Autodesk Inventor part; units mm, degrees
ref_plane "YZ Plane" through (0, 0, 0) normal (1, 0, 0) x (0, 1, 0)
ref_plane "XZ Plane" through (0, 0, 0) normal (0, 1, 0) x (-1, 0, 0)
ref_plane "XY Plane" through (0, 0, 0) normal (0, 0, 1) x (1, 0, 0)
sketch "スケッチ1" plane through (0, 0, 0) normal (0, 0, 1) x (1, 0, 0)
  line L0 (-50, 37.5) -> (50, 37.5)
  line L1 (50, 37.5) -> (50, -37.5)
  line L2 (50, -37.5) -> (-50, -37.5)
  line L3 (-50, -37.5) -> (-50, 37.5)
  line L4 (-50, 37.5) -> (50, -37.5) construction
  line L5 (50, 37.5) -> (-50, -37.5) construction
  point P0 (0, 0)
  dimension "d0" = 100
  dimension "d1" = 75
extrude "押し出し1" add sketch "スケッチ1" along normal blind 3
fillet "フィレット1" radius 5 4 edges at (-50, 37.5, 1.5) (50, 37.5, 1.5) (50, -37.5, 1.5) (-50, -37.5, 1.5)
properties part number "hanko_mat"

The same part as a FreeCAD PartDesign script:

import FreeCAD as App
import Part
import Sketcher
from FreeCAD import Vector
Q = App.Units.Quantity


def edges_at(feature, points):
    """Names of the edges that pass closest to the given points."""
    edges = feature.Shape.Edges
    near = lambda p: min(range(len(edges)), key=lambda i: edges[i].distToShape(Part.Vertex(*p))[0])
    return sorted({f"Edge{near(p) + 1}" for p in points})


def add_polygon(sketch, points):
    """Adds a closed chain of lines whose ends are joined by coincident constraints."""
    first, n = sketch.GeometryCount, len(points)
    for a, b in zip(points, points[1:] + points[:1]):
        sketch.addGeometry(Part.LineSegment(App.Vector(*a, 0), App.Vector(*b, 0)), False)
    for i in range(n):
        sketch.addConstraint(Sketcher.Constraint("Coincident", first + i, 2, first + (i + 1) % n, 1))

doc = App.newDocument("Part")
params = doc.addObject("Spreadsheet::Sheet", "Params")
for row, (alias, value) in enumerate([
    ("sketch1_width", "100 mm"),
    ("sketch1_height", "75 mm"),
    ("pad1_length", "3 mm"),
    ("fillet_radius", "5 mm"),
], start=1):
    params.set(f"A{row}", alias)
    params.set(f"B{row}", "=" + value)
    params.setAlias(f"B{row}", alias)

body = doc.addObject("PartDesign::Body", "Body")

sketch1 = doc.addObject("Sketcher::SketchObject", "Sketch")
body.addObject(sketch1)
sketch1.AttachmentSupport = (doc.XY_Plane, [""])
sketch1.MapMode = "FlatFace"
add_polygon(sketch1, [(50, 38), (-50, 38), (-50, -38), (50, -38)])
sketch1.addConstraint([
    Sketcher.Constraint("Horizontal", 0),
    Sketcher.Constraint("Vertical", 1),
    Sketcher.Constraint("Horizontal", 2),
    Sketcher.Constraint("Vertical", 3),
    Sketcher.Constraint("Symmetric", 0, 2, 2, 2, -1, 1),
    Sketcher.Constraint("DistanceX", 0, 2, 0, 1, Q("100 mm")),
    Sketcher.Constraint("DistanceY", 1, 2, 1, 1, Q("75 mm")),
])
sketch1.setExpression("Constraints[9]", "Params.sketch1_width")
sketch1.setExpression("Constraints[10]", "Params.sketch1_height")
pad1 = doc.addObject("PartDesign::Pad", "Pad")
body.addObject(pad1)
pad1.Profile = sketch1
pad1.setExpression("Length", "Params.pad1_length")
doc.recompute()

fillet = doc.addObject("PartDesign::Fillet", "Fillet")
body.addObject(fillet)
fillet.Base = (pad1, edges_at(pad1, [
    (-50, 37.5, 1.5),
    (50, 37.5, 1.5),
    (50, -37.5, 1.5),
    (-50, -37.5, 1.5),
]))
fillet.setExpression("Radius", "Params.fillet_radius")

doc.recompute()
